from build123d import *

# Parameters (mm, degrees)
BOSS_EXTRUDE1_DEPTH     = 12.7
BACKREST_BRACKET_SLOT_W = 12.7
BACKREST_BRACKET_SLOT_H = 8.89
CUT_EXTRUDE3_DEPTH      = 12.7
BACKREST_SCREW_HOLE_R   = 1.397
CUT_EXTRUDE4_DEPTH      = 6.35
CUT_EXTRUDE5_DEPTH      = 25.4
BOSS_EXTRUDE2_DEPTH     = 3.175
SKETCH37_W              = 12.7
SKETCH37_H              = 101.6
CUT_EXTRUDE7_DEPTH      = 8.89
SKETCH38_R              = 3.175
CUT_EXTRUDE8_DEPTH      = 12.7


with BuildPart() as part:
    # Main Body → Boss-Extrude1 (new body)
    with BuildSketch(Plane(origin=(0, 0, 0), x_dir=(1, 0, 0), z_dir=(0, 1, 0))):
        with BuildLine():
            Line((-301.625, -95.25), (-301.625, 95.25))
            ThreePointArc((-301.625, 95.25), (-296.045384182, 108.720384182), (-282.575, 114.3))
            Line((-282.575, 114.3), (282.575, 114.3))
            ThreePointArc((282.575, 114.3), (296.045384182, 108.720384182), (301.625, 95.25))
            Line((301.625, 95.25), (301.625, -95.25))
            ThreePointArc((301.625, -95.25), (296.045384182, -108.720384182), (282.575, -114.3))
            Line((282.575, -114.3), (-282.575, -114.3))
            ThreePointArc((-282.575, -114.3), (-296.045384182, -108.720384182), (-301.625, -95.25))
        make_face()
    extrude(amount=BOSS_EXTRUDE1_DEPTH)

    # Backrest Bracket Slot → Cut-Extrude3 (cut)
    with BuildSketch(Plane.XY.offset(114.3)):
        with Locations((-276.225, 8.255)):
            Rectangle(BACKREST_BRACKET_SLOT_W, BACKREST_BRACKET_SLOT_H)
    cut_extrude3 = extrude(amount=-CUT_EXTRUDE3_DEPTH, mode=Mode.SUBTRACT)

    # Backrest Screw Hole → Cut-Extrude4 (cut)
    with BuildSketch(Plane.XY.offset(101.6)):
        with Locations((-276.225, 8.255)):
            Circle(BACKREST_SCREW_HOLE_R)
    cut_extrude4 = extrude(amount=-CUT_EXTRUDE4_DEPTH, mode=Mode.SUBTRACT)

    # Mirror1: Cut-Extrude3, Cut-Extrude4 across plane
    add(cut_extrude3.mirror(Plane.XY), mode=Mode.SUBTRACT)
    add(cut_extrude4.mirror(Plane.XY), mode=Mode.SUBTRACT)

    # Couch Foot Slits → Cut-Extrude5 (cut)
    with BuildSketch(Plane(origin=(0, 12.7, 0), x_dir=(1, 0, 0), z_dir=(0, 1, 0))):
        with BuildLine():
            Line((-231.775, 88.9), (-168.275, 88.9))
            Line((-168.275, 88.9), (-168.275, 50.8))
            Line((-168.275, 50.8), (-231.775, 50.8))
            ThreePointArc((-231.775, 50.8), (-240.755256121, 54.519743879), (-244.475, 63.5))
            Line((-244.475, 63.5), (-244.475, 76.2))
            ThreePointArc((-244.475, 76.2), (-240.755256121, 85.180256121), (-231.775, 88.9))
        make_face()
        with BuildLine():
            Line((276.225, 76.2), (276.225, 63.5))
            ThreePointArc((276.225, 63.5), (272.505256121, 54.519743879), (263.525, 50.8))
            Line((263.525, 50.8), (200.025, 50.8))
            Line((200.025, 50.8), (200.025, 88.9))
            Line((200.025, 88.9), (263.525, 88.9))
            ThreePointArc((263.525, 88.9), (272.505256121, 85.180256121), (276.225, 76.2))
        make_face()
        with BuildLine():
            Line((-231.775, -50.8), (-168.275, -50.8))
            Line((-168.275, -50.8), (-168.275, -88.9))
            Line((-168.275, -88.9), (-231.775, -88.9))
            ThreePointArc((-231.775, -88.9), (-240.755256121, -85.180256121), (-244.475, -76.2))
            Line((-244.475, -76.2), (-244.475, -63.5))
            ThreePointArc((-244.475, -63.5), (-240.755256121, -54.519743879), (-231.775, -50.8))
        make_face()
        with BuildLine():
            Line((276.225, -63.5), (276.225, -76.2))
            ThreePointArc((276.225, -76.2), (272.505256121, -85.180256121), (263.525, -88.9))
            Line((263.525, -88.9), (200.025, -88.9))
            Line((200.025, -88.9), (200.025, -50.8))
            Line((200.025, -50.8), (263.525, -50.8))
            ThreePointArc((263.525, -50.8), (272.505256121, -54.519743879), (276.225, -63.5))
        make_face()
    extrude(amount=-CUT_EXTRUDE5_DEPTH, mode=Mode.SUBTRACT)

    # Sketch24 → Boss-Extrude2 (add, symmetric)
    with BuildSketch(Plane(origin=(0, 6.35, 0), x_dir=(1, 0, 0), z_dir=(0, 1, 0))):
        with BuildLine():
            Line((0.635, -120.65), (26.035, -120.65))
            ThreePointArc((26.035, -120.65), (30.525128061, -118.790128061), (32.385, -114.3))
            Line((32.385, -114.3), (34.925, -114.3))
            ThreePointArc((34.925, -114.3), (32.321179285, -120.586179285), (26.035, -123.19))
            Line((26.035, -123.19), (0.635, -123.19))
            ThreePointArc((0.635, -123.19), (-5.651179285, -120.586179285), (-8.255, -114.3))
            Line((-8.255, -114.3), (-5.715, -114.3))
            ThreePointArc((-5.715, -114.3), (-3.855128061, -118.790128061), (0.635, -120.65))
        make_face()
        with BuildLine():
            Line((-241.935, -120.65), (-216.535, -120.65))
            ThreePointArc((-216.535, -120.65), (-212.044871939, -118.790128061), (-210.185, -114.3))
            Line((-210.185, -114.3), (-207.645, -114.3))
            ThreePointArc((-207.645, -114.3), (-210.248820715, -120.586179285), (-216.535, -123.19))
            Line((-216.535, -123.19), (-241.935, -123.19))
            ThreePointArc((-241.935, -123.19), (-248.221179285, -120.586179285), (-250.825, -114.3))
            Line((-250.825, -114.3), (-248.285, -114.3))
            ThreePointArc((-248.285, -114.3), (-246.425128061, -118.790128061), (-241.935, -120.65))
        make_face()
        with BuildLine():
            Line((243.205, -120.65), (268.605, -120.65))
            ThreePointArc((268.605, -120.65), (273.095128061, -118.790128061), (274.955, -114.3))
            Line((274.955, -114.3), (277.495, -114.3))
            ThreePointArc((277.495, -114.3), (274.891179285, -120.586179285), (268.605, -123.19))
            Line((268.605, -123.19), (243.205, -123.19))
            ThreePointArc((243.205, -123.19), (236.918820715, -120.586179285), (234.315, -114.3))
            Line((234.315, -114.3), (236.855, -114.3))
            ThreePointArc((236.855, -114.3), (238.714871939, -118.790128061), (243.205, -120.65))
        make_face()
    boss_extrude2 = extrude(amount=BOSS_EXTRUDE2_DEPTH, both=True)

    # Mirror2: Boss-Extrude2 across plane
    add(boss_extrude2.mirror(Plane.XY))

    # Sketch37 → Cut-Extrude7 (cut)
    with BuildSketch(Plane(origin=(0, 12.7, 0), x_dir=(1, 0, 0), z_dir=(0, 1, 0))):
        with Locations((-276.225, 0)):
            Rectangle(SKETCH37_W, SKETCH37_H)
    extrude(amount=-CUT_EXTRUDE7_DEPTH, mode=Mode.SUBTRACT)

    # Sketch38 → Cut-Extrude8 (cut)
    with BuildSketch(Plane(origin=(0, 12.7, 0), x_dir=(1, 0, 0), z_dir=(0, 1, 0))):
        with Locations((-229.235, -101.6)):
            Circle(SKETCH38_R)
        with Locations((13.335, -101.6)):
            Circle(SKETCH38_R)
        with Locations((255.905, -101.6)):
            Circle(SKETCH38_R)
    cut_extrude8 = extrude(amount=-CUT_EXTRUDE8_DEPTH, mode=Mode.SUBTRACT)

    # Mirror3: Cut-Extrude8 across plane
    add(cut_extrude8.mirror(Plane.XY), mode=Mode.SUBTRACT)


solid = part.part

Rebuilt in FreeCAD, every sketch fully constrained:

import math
import FreeCAD as App
import Part
import Sketcher
from FreeCAD import Vector
Q = App.Units.Quantity

doc = App.newDocument("Part")
body = doc.addObject("PartDesign::Body", "Body")

# Sketch on XZ plane
sketch1 = body.newObject("Sketcher::SketchObject", "Sketch")
sketch1.AttachmentSupport = (doc.getObject("XZ_Plane"), [""])
sketch1.MapMode = "FlatFace"
sketch1.addGeometry([
    Part.LineSegment(Vector(-302, -95, 0), Vector(-302, 95, 0)),  # 0
    Part.ArcOfCircle(Part.Circle(Vector(-283, 95, 0), Vector(0, 0, 1), 19), math.radians(90), math.radians(180)),  # 1
    Part.LineSegment(Vector(-283, 114, 0), Vector(283, 114, 0)),  # 2
    Part.ArcOfCircle(Part.Circle(Vector(283, 95, 0), Vector(0, 0, 1), 19), math.radians(0), math.radians(90)),  # 3
    Part.LineSegment(Vector(302, 95, 0), Vector(302, -95, 0)),  # 4
    Part.ArcOfCircle(Part.Circle(Vector(283, -95, 0), Vector(0, 0, 1), 19), math.radians(-90), math.radians(0)),  # 5
    Part.LineSegment(Vector(283, -114, 0), Vector(-283, -114, 0)),  # 6
    Part.ArcOfCircle(Part.Circle(Vector(-283, -95, 0), Vector(0, 0, 1), 19), math.radians(180), math.radians(270)),  # 7
], False)
sketch1.addConstraint([
    Sketcher.Constraint("Tangent", 0, 2, 1, 2),
    Sketcher.Constraint("Tangent", 1, 1, 2, 1),
    Sketcher.Constraint("Tangent", 2, 2, 3, 2),
    Sketcher.Constraint("Tangent", 3, 1, 4, 1),
    Sketcher.Constraint("Tangent", 4, 2, 5, 2),
    Sketcher.Constraint("Tangent", 5, 1, 6, 1),
    Sketcher.Constraint("Tangent", 6, 2, 7, 2),
    Sketcher.Constraint("Tangent", 7, 1, 0, 1),
    Sketcher.Constraint("Vertical", 0),
    Sketcher.Constraint("Horizontal", 2),
    Sketcher.Constraint("Vertical", 4),
    Sketcher.Constraint("Horizontal", 6),
    Sketcher.Constraint("Equal", 1, 3),
    Sketcher.Constraint("Equal", 3, 5),
    Sketcher.Constraint("Equal", 5, 7),
    Sketcher.Constraint("Symmetric", 1, 3, 5, 3, -1, 1),
    Sketcher.Constraint("Radius", 1, Q("0.75 in")),
    Sketcher.Constraint("DistanceY", 0, 1, 0, 2, Q("7.5 in")),
    Sketcher.Constraint("DistanceX", 0, 2, 3, 3, Q("23 in")),
])
pad1 = body.newObject("PartDesign::Pad", "Pad")
pad1.Profile = sketch1
pad1.Length = Q("0.5 in")
pad1.Reversed = True

# Sketch on XY plane
sketch2 = body.newObject("Sketcher::SketchObject", "Sketch001")
sketch2.AttachmentSupport = (doc.getObject("XY_Plane"), [""])
sketch2.MapMode = "FlatFace"
sketch2.AttachmentOffset = App.Placement(Vector(0, 0, 4.5 * 25.4), App.Rotation())
sketch2.addGeometry([
    Part.LineSegment(Vector(-283, 13, 0), Vector(-283, 4, 0)),
    Part.LineSegment(Vector(-283, 4, 0), Vector(-270, 4, 0)),
    Part.LineSegment(Vector(-270, 4, 0), Vector(-270, 13, 0)),
    Part.LineSegment(Vector(-270, 13, 0), Vector(-283, 13, 0)),
], False)
sketch2.addConstraint([
    Sketcher.Constraint("Coincident", 0, 2, 1, 1),
    Sketcher.Constraint("Coincident", 1, 2, 2, 1),
    Sketcher.Constraint("Coincident", 2, 2, 3, 1),
    Sketcher.Constraint("Coincident", 3, 2, 0, 1),
    Sketcher.Constraint("Vertical", 0),
    Sketcher.Constraint("Horizontal", 1),
    Sketcher.Constraint("Vertical", 2),
    Sketcher.Constraint("Horizontal", 3),
    Sketcher.Constraint("DistanceX", 1, 1, 1, 2, Q("0.5 in")),
    Sketcher.Constraint("DistanceY", 0, 2, 0, 1, Q("0.35 in")),
    Sketcher.Constraint("DistanceY", -1, 1, 2, 2, Q("0.5 in")),
    Sketcher.Constraint("DistanceX", 0, 2, -1, 1, Q("11.125 in")),
])
pocket1 = body.newObject("PartDesign::Pocket", "Pocket")
pocket1.Profile = sketch2
pocket1.Length = Q("0.5 in")

# Sketch on XY plane
sketch3 = body.newObject("Sketcher::SketchObject", "Sketch002")
sketch3.AttachmentSupport = (doc.getObject("XY_Plane"), [""])
sketch3.MapMode = "FlatFace"
sketch3.AttachmentOffset = App.Placement(Vector(0, 0, 4 * 25.4), App.Rotation())
sketch3.addGeometry(Part.Circle(Vector(-276.2, 8.3, 0), Vector(0, 0, 1), 1.4), False)
sketch3.addConstraint([
    Sketcher.Constraint("Diameter", 0, Q("0.11 in")),
    Sketcher.Constraint("DistanceX", 0, 3, -1, 1, Q("10.875 in")),
    Sketcher.Constraint("DistanceY", -1, 1, 0, 3, Q("0.325 in")),
])
pocket2 = body.newObject("PartDesign::Pocket", "Pocket001")
pocket2.Profile = sketch3
pocket2.Length = Q("0.25 in")
doc.recompute()

mirrored = body.newObject("PartDesign::Mirrored", "Mirrored")
mirrored.Originals = [pocket1, pocket2]
mirrored.MirrorPlane = (doc.getObject("XY_Plane"), [""])
body.Tip = mirrored

# Sketch on XZ plane
sketch4 = body.newObject("Sketcher::SketchObject", "Sketch003")
sketch4.AttachmentSupport = (doc.getObject("XZ_Plane"), [""])
sketch4.MapMode = "FlatFace"
sketch4.AttachmentOffset = App.Placement(Vector(0, 0, -0.5 * 25.4), App.Rotation())
sketch4.addGeometry([
    Part.LineSegment(Vector(-168, -89, 0), Vector(-232, -89, 0)),  # 0
    Part.ArcOfCircle(Part.Circle(Vector(-232, -76, 0), Vector(0, 0, 1), 13), math.radians(180), math.radians(270)),  # 1
    Part.LineSegment(Vector(-244, -76, 0), Vector(-244, -64, 0)),  # 2
    Part.ArcOfCircle(Part.Circle(Vector(-232, -64, 0), Vector(0, 0, 1), 13), math.radians(90), math.radians(180)),  # 3
    Part.LineSegment(Vector(-232, -51, 0), Vector(-168, -51, 0)),  # 4
    Part.LineSegment(Vector(-168, -51, 0), Vector(-168, -89, 0)),  # 5
    Part.LineSegment(Vector(276, -64, 0), Vector(276, -76, 0)),  # 6
    Part.ArcOfCircle(Part.Circle(Vector(264, -76, 0), Vector(0, 0, 1), 13), math.radians(-90), math.radians(0)),  # 7
    Part.LineSegment(Vector(264, -89, 0), Vector(200, -89, 0)),  # 8
    Part.LineSegment(Vector(200, -89, 0), Vector(200, -51, 0)),  # 9
    Part.LineSegment(Vector(200, -51, 0), Vector(264, -51, 0)),  # 10
    Part.ArcOfCircle(Part.Circle(Vector(264, -64, 0), Vector(0, 0, 1), 13), math.radians(0), math.radians(90)),  # 11
    Part.LineSegment(Vector(-168, 51, 0), Vector(-232, 51, 0)),  # 12
    Part.ArcOfCircle(Part.Circle(Vector(-232, 64, 0), Vector(0, 0, 1), 13), math.radians(180), math.radians(270)),  # 13
    Part.LineSegment(Vector(-244, 64, 0), Vector(-244, 76, 0)),  # 14
    Part.ArcOfCircle(Part.Circle(Vector(-232, 76, 0), Vector(0, 0, 1), 13), math.radians(90), math.radians(180)),  # 15
    Part.LineSegment(Vector(-232, 89, 0), Vector(-168, 89, 0)),  # 16
    Part.LineSegment(Vector(-168, 89, 0), Vector(-168, 51, 0)),  # 17
    Part.LineSegment(Vector(276, 76, 0), Vector(276, 64, 0)),  # 18
    Part.ArcOfCircle(Part.Circle(Vector(264, 64, 0), Vector(0, 0, 1), 13), math.radians(-90), math.radians(0)),  # 19
    Part.LineSegment(Vector(264, 51, 0), Vector(200, 51, 0)),  # 20
    Part.LineSegment(Vector(200, 51, 0), Vector(200, 89, 0)),  # 21
    Part.LineSegment(Vector(200, 89, 0), Vector(264, 89, 0)),  # 22
    Part.ArcOfCircle(Part.Circle(Vector(264, 76, 0), Vector(0, 0, 1), 13), math.radians(0), math.radians(90)),  # 23
], False)
sketch4.addConstraint([
    Sketcher.Constraint("Tangent", 0, 2, 1, 2),
    Sketcher.Constraint("Tangent", 1, 1, 2, 1),
    Sketcher.Constraint("Tangent", 2, 2, 3, 2),
    Sketcher.Constraint("Tangent", 3, 1, 4, 1),
    Sketcher.Constraint("Coincident", 4, 2, 5, 1),
    Sketcher.Constraint("Coincident", 5, 2, 0, 1),
    Sketcher.Constraint("Tangent", 6, 2, 7, 2),
    Sketcher.Constraint("Tangent", 7, 1, 8, 1),
    Sketcher.Constraint("Coincident", 8, 2, 9, 1),
    Sketcher.Constraint("Coincident", 9, 2, 10, 1),
    Sketcher.Constraint("Tangent", 10, 2, 11, 2),
    Sketcher.Constraint("Tangent", 11, 1, 6, 1),
    Sketcher.Constraint("Tangent", 12, 2, 13, 2),
    Sketcher.Constraint("Tangent", 13, 1, 14, 1),
    Sketcher.Constraint("Tangent", 14, 2, 15, 2),
    Sketcher.Constraint("Tangent", 15, 1, 16, 1),
    Sketcher.Constraint("Coincident", 16, 2, 17, 1),
    Sketcher.Constraint("Coincident", 17, 2, 12, 1),
    Sketcher.Constraint("Tangent", 18, 2, 19, 2),
    Sketcher.Constraint("Tangent", 19, 1, 20, 1),
    Sketcher.Constraint("Coincident", 20, 2, 21, 1),
    Sketcher.Constraint("Coincident", 21, 2, 22, 1),
    Sketcher.Constraint("Tangent", 22, 2, 23, 2),
    Sketcher.Constraint("Tangent", 23, 1, 18, 1),
    Sketcher.Constraint("Horizontal", 0),
    Sketcher.Constraint("Vertical", 2),
    Sketcher.Constraint("Horizontal", 4),
    Sketcher.Constraint("Vertical", 5),
    Sketcher.Constraint("Vertical", 6),
    Sketcher.Constraint("Horizontal", 8),
    Sketcher.Constraint("Vertical", 9),
    Sketcher.Constraint("Horizontal", 10),
    Sketcher.Constraint("Horizontal", 12),
    Sketcher.Constraint("Vertical", 14),
    Sketcher.Constraint("Horizontal", 16),
    Sketcher.Constraint("Vertical", 17),
    Sketcher.Constraint("Vertical", 18),
    Sketcher.Constraint("Horizontal", 20),
    Sketcher.Constraint("Vertical", 21),
    Sketcher.Constraint("Horizontal", 22),
    Sketcher.Constraint("Equal", 1, 3),
    Sketcher.Constraint("Equal", 3, 7),
    Sketcher.Constraint("Equal", 7, 11),
    Sketcher.Constraint("Equal", 11, 13),
    Sketcher.Constraint("Equal", 13, 15),
    Sketcher.Constraint("Equal", 15, 19),
    Sketcher.Constraint("Equal", 19, 23),
    Sketcher.Constraint("Symmetric", 3, 3, 13, 3, -1),
    Sketcher.Constraint("Symmetric", 11, 3, 19, 3, -1),
    Sketcher.Constraint("Symmetric", 5, 2, 16, 2, -1),
    Sketcher.Constraint("Symmetric", 8, 2, 21, 2, -1),
    Sketcher.Constraint("Horizontal", 1, 3, 7, 3),
    Sketcher.Constraint("Horizontal", 3, 3, 11, 3),
    Sketcher.Constraint("Equal", 4, 8),
    Sketcher.Constraint("Radius", 1, Q("0.5 in")),
    Sketcher.Constraint("DistanceX", 0, 2, 0, 1, Q("2.5 in")),
    Sketcher.Constraint("DistanceY", 2, 1, 2, 2, Q("0.5 in")),
    Sketcher.Constraint("DistanceY", 1, 3, -1, 1, Q("3 in")),
    Sketcher.Constraint("DistanceX", 1, 3, 7, 3, Q("19.5 in")),
    Sketcher.Constraint("DistanceX", 1, 3, -1, 1, Q("9.125 in")),
])
pocket3 = body.newObject("PartDesign::Pocket", "Pocket002")
pocket3.Profile = sketch4
pocket3.Length = Q("1 in")
pocket3.Reversed = True

# Sketch on XZ plane
sketch5 = body.newObject("Sketcher::SketchObject", "Sketch004")
sketch5.AttachmentSupport = (doc.getObject("XZ_Plane"), [""])
sketch5.MapMode = "FlatFace"
sketch5.AttachmentOffset = App.Placement(Vector(0, 0, -0.25 * 25.4), App.Rotation())
sketch5.addGeometry([
    Part.LineSegment(Vector(26, 120.7, 0), Vector(0.6, 120.7, 0)),  # 0
    Part.ArcOfCircle(Part.Circle(Vector(0.6, 114.3, 0), Vector(0, 0, 1), 6.3), math.radians(90), math.radians(180)),  # 1
    Part.LineSegment(Vector(-5.7, 114.3, 0), Vector(-8.3, 114.3, 0)),  # 2
    Part.ArcOfCircle(Part.Circle(Vector(0.6, 114.3, 0), Vector(0, 0, 1), 8.9), math.radians(90), math.radians(180)),  # 3
    Part.LineSegment(Vector(0.6, 123.2, 0), Vector(26, 123.2, 0)),  # 4
    Part.ArcOfCircle(Part.Circle(Vector(26, 114.3, 0), Vector(0, 0, 1), 8.9), math.radians(0), math.radians(90)),  # 5
    Part.LineSegment(Vector(34.9, 114.3, 0), Vector(32.4, 114.3, 0)),  # 6
    Part.ArcOfCircle(Part.Circle(Vector(26, 114.3, 0), Vector(0, 0, 1), 6.3), math.radians(0), math.radians(90)),  # 7
    Part.LineSegment(Vector(-216.5, 120.7, 0), Vector(-241.9, 120.7, 0)),  # 8
    Part.ArcOfCircle(Part.Circle(Vector(-241.9, 114.3, 0), Vector(0, 0, 1), 6.3), math.radians(90), math.radians(180)),  # 9
    Part.LineSegment(Vector(-248.3, 114.3, 0), Vector(-250.8, 114.3, 0)),  # 10
    Part.ArcOfCircle(Part.Circle(Vector(-241.9, 114.3, 0), Vector(0, 0, 1), 8.9), math.radians(90), math.radians(180)),  # 11
    Part.LineSegment(Vector(-241.9, 123.2, 0), Vector(-216.5, 123.2, 0)),  # 12
    Part.ArcOfCircle(Part.Circle(Vector(-216.5, 114.3, 0), Vector(0, 0, 1), 8.9), math.radians(0), math.radians(90)),  # 13
    Part.LineSegment(Vector(-207.6, 114.3, 0), Vector(-210.2, 114.3, 0)),  # 14
    Part.ArcOfCircle(Part.Circle(Vector(-216.5, 114.3, 0), Vector(0, 0, 1), 6.3), math.radians(0), math.radians(90)),  # 15
    Part.LineSegment(Vector(268.6, 120.7, 0), Vector(243.2, 120.7, 0)),  # 16
    Part.ArcOfCircle(Part.Circle(Vector(243.2, 114.3, 0), Vector(0, 0, 1), 6.3), math.radians(90), math.radians(180)),  # 17
    Part.LineSegment(Vector(236.9, 114.3, 0), Vector(234.3, 114.3, 0)),  # 18
    Part.ArcOfCircle(Part.Circle(Vector(243.2, 114.3, 0), Vector(0, 0, 1), 8.9), math.radians(90), math.radians(180)),  # 19
    Part.LineSegment(Vector(243.2, 123.2, 0), Vector(268.6, 123.2, 0)),  # 20
    Part.ArcOfCircle(Part.Circle(Vector(268.6, 114.3, 0), Vector(0, 0, 1), 8.9), math.radians(0), math.radians(90)),  # 21
    Part.LineSegment(Vector(277.5, 114.3, 0), Vector(275, 114.3, 0)),  # 22
    Part.ArcOfCircle(Part.Circle(Vector(268.6, 114.3, 0), Vector(0, 0, 1), 6.3), math.radians(0), math.radians(90)),  # 23
], False)
sketch5.addConstraint([
    Sketcher.Constraint("Tangent", 0, 2, 1, 1),
    Sketcher.Constraint("Coincident", 1, 2, 2, 1),
    Sketcher.Constraint("Coincident", 2, 2, 3, 2),
    Sketcher.Constraint("Tangent", 3, 1, 4, 1),
    Sketcher.Constraint("Tangent", 4, 2, 5, 2),
    Sketcher.Constraint("Coincident", 5, 1, 6, 1),
    Sketcher.Constraint("Coincident", 6, 2, 7, 1),
    Sketcher.Constraint("Tangent", 7, 2, 0, 1),
    Sketcher.Constraint("Tangent", 8, 2, 9, 1),
    Sketcher.Constraint("Coincident", 9, 2, 10, 1),
    Sketcher.Constraint("Coincident", 10, 2, 11, 2),
    Sketcher.Constraint("Tangent", 11, 1, 12, 1),
    Sketcher.Constraint("Tangent", 12, 2, 13, 2),
    Sketcher.Constraint("Coincident", 13, 1, 14, 1),
    Sketcher.Constraint("Coincident", 14, 2, 15, 1),
    Sketcher.Constraint("Tangent", 15, 2, 8, 1),
    Sketcher.Constraint("Tangent", 16, 2, 17, 1),
    Sketcher.Constraint("Coincident", 17, 2, 18, 1),
    Sketcher.Constraint("Coincident", 18, 2, 19, 2),
    Sketcher.Constraint("Tangent", 19, 1, 20, 1),
    Sketcher.Constraint("Tangent", 20, 2, 21, 2),
    Sketcher.Constraint("Coincident", 21, 1, 22, 1),
    Sketcher.Constraint("Coincident", 22, 2, 23, 1),
    Sketcher.Constraint("Tangent", 23, 2, 16, 1),
    Sketcher.Constraint("Horizontal", 0),
    Sketcher.Constraint("Horizontal", 2),
    Sketcher.Constraint("Horizontal", 4),
    Sketcher.Constraint("Horizontal", 6),
    Sketcher.Constraint("Horizontal", 8),
    Sketcher.Constraint("Horizontal", 10),
    Sketcher.Constraint("Horizontal", 12),
    Sketcher.Constraint("Horizontal", 14),
    Sketcher.Constraint("Horizontal", 16),
    Sketcher.Constraint("Horizontal", 18),
    Sketcher.Constraint("Horizontal", 20),
    Sketcher.Constraint("Horizontal", 22),
    Sketcher.Constraint("Coincident", 3, 3, 1, 3),
    Sketcher.Constraint("Coincident", 7, 3, 5, 3),
    Sketcher.Constraint("Coincident", 11, 3, 9, 3),
    Sketcher.Constraint("Coincident", 15, 3, 13, 3),
    Sketcher.Constraint("Coincident", 19, 3, 17, 3),
    Sketcher.Constraint("Coincident", 23, 3, 21, 3),
    Sketcher.Constraint("Equal", 3, 5),
    Sketcher.Constraint("Equal", 7, 9),
    Sketcher.Constraint("Equal", 5, 11),
    Sketcher.Constraint("Equal", 11, 13),
    Sketcher.Constraint("Equal", 15, 17),
    Sketcher.Constraint("Equal", 13, 19),
    Sketcher.Constraint("Equal", 19, 21),
    Sketcher.Constraint("Horizontal", 7, 3, 9, 3),
    Sketcher.Constraint("Horizontal", 15, 3, 17, 3),
    Sketcher.Constraint("Horizontal", 23, 3, 1, 2),
    Sketcher.Constraint("Horizontal", 2, 2, 5, 1),
    Sketcher.Constraint("Horizontal", 6, 2, 9, 2),
    Sketcher.Constraint("Horizontal", 10, 2, 13, 1),
    Sketcher.Constraint("Horizontal", 14, 2, 17, 2),
    Sketcher.Constraint("Horizontal", 18, 2, 21, 1),
    Sketcher.Constraint("Equal", 4, 8),
    Sketcher.Constraint("Equal", 12, 16),
    Sketcher.Constraint("DistanceX", 0, 2, 0, 1, Q("1 in")),
    Sketcher.Constraint("Radius", 1, Q("0.25 in")),
    Sketcher.Constraint("Radius", 3, Q("0.35 in")),
    Sketcher.Constraint("DistanceY", -1, 1, 1, 3, Q("4.5 in")),
    Sketcher.Constraint("DistanceX", 15, 3, 17, 3, Q("18.1 in")),
    Sketcher.Constraint("DistanceX", 8, 2, 2, 2, Q("9.2 in")),
    Sketcher.Constraint("DistanceX", -1, 1, 1, 3, Q("0.025 in")),
])
pad2 = body.newObject("PartDesign::Pad", "Pad001")
pad2.Profile = sketch5
pad2.Length = Q("0.25 in")
pad2.Midplane = True
doc.recompute()

mirrored2 = body.newObject("PartDesign::Mirrored", "Mirrored001")
mirrored2.Originals = [pad2]
mirrored2.MirrorPlane = (doc.getObject("XY_Plane"), [""])
body.Tip = mirrored2

# Sketch on XZ plane
sketch6 = body.newObject("Sketcher::SketchObject", "Sketch005")
sketch6.AttachmentSupport = (doc.getObject("XZ_Plane"), [""])
sketch6.MapMode = "FlatFace"
sketch6.AttachmentOffset = App.Placement(Vector(0, 0, -0.5 * 25.4), App.Rotation())
sketch6.addGeometry([
    Part.LineSegment(Vector(-283, -51, 0), Vector(-283, 51, 0)),
    Part.LineSegment(Vector(-283, 51, 0), Vector(-270, 51, 0)),
    Part.LineSegment(Vector(-270, 51, 0), Vector(-270, -51, 0)),
    Part.LineSegment(Vector(-270, -51, 0), Vector(-283, -51, 0)),
], False)
sketch6.addConstraint([
    Sketcher.Constraint("Coincident", 0, 2, 1, 1),
    Sketcher.Constraint("Coincident", 1, 2, 2, 1),
    Sketcher.Constraint("Coincident", 2, 2, 3, 1),
    Sketcher.Constraint("Coincident", 3, 2, 0, 1),
    Sketcher.Constraint("Vertical", 0),
    Sketcher.Constraint("Horizontal", 1),
    Sketcher.Constraint("Vertical", 2),
    Sketcher.Constraint("Horizontal", 3),
    Sketcher.Constraint("DistanceY", 0, 1, 0, 2, Q("4 in")),
    Sketcher.Constraint("DistanceX", 1, 1, 1, 2, Q("0.5 in")),
    Sketcher.Constraint("DistanceY", -1, 1, 0, 2, Q("2 in")),
    Sketcher.Constraint("DistanceX", 0, 2, -1, 1, Q("11.125 in")),
])
pocket4 = body.newObject("PartDesign::Pocket", "Pocket003")
pocket4.Profile = sketch6
pocket4.Length = Q("0.35 in")
pocket4.Reversed = True

# Sketch on XZ plane
sketch7 = body.newObject("Sketcher::SketchObject", "Sketch006")
sketch7.AttachmentSupport = (doc.getObject("XZ_Plane"), [""])
sketch7.MapMode = "FlatFace"
sketch7.AttachmentOffset = App.Placement(Vector(0, 0, -0.5 * 25.4), App.Rotation())
sketch7.addGeometry([
    Part.Circle(Vector(-229.2, 101.6, 0), Vector(0, 0, 1), 3.2),
    Part.Circle(Vector(13.3, 101.6, 0), Vector(0, 0, 1), 3.2),
    Part.Circle(Vector(255.9, 101.6, 0), Vector(0, 0, 1), 3.2),
], False)
sketch7.addConstraint([
    Sketcher.Constraint("Equal", 0, 1),
    Sketcher.Constraint("Equal", 1, 2),
    Sketcher.Constraint("Horizontal", 0, 3, 1, 3),
    Sketcher.Constraint("Horizontal", 1, 3, 2, 3),
    Sketcher.Constraint("Diameter", 0, Q("0.25 in")),
    Sketcher.Constraint("DistanceY", -1, 1, 0, 3, Q("4 in")),
    Sketcher.Constraint("DistanceX", 0, 3, 2, 3, Q("19.1 in")),
    Sketcher.Constraint("DistanceX", 0, 3, 1, 3, Q("9.55 in")),
    Sketcher.Constraint("DistanceX", 0, 3, -1, 1, Q("9.025 in")),
])
pocket5 = body.newObject("PartDesign::Pocket", "Pocket004")
pocket5.Profile = sketch7
pocket5.Length = Q("0.5 in")
pocket5.Reversed = True
doc.recompute()

mirrored3 = body.newObject("PartDesign::Mirrored", "Mirrored002")
mirrored3.Originals = [pocket5]
mirrored3.MirrorPlane = (doc.getObject("XY_Plane"), [""])
body.Tip = mirrored3

doc.recompute()
